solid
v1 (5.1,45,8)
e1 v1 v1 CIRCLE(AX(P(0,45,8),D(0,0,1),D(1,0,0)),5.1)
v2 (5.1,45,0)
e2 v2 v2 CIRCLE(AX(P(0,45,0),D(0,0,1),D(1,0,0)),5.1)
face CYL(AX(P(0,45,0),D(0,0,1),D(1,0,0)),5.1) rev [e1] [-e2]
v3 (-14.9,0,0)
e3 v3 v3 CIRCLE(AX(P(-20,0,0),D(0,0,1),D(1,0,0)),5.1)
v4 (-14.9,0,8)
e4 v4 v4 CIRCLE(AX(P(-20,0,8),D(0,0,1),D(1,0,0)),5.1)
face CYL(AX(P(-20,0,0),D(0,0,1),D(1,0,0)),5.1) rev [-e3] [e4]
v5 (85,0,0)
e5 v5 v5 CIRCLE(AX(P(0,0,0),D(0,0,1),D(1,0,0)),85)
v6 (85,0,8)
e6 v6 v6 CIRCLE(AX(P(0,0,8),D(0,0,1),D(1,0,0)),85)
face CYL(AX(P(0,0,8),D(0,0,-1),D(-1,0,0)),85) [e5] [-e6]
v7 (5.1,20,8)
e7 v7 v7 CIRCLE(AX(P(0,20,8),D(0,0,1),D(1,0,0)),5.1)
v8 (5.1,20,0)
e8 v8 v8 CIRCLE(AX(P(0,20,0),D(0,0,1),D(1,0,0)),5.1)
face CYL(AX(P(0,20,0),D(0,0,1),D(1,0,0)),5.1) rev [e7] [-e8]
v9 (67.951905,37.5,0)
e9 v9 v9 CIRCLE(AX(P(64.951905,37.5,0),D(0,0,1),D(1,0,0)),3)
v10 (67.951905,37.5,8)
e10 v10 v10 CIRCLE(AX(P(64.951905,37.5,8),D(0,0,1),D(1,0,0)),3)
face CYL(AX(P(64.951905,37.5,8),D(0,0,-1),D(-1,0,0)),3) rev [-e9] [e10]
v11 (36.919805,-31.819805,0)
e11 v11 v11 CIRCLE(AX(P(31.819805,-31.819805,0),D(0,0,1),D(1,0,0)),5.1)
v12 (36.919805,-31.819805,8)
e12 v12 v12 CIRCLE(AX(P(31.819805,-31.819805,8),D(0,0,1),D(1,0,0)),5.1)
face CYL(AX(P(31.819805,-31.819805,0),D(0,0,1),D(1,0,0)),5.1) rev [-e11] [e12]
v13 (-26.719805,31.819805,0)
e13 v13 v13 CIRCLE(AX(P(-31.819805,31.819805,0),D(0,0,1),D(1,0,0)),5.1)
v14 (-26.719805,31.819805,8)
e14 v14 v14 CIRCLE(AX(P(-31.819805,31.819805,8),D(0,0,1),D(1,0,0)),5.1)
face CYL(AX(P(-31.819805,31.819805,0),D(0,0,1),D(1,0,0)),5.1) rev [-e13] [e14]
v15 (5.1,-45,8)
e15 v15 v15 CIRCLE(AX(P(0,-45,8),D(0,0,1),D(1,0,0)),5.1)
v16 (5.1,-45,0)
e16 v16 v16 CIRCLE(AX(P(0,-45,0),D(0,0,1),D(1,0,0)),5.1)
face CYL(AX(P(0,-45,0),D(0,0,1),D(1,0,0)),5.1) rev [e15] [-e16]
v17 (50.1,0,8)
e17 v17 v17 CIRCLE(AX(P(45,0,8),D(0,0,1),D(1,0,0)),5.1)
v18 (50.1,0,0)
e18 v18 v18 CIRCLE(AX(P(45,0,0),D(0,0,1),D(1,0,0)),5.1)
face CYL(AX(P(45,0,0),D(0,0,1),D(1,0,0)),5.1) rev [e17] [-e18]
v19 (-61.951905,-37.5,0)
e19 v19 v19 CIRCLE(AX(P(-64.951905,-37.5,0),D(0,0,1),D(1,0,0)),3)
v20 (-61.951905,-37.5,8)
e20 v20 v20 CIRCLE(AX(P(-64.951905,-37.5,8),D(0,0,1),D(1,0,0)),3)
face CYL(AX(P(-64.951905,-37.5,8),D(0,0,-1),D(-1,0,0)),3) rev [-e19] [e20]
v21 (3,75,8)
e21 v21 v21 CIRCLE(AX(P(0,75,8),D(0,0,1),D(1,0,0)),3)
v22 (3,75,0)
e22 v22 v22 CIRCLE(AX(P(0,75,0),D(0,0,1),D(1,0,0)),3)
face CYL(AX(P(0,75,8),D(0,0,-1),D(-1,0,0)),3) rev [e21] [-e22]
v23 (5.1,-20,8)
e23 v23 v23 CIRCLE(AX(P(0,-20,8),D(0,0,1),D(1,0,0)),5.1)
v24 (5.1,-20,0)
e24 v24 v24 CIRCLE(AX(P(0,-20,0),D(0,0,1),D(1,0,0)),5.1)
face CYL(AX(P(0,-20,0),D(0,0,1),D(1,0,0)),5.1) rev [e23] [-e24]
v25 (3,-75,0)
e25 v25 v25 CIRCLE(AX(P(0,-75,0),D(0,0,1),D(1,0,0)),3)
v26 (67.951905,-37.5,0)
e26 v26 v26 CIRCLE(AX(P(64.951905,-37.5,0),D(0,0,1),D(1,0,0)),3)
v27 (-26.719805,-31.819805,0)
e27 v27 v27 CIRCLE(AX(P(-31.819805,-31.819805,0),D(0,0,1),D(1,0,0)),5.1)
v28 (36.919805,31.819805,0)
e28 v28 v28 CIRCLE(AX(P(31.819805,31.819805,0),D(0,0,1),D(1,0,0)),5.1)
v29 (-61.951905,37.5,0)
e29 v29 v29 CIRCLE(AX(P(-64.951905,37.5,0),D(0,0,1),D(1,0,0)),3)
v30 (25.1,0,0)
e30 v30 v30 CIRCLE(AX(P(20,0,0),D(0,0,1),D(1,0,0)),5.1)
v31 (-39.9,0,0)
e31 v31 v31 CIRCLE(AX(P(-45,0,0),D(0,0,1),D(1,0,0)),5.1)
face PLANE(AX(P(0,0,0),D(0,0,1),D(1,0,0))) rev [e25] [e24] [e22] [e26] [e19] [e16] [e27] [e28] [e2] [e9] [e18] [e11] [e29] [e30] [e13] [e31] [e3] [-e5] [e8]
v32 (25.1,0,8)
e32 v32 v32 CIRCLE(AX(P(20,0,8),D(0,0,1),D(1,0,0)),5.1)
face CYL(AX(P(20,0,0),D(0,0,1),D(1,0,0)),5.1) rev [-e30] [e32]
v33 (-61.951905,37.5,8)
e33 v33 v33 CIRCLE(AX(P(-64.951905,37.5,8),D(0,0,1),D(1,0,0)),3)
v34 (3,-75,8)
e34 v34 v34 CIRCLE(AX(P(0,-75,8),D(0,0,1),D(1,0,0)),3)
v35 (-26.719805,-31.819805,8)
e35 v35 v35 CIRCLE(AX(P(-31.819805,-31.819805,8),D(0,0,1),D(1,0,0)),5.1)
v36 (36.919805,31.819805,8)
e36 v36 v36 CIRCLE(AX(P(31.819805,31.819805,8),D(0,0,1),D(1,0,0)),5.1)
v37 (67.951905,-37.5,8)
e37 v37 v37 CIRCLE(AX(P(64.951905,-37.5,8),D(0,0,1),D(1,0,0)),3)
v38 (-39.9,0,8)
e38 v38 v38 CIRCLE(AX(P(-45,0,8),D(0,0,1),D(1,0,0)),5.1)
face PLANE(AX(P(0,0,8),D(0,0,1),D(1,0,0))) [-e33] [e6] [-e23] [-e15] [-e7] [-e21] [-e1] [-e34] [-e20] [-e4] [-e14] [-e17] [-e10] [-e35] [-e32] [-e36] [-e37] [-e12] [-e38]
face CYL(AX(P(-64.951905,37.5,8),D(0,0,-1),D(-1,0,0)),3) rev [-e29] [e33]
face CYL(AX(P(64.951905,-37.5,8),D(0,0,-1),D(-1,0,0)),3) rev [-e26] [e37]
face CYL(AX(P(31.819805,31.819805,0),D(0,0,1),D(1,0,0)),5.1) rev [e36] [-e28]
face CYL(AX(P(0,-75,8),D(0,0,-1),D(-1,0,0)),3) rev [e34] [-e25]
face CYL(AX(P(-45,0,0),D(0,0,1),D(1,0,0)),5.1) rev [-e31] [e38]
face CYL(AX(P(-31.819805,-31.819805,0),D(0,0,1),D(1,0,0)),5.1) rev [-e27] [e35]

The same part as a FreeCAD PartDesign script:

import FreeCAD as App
import Part
import Sketcher
from FreeCAD import Vector
Q = App.Units.Quantity

doc = App.newDocument("Part")
body = doc.addObject("PartDesign::Body", "Body")

sketch1 = body.newObject("Sketcher::SketchObject", "Sketch")
sketch1.AttachmentSupport = (doc.getObject("XY_Plane"), [""])
sketch1.MapMode = "FlatFace"
sketch1.addGeometry([
    Part.Circle(Vector(0, 0, 0), Vector(0, 0, 1), 85),
    Part.Circle(Vector(-65, -37.5, 0), Vector(0, 0, 1), 3),
    Part.Circle(Vector(0, -75, 0), Vector(0, 0, 1), 3),
    Part.Circle(Vector(65, -37.5, 0), Vector(0, 0, 1), 3),
    Part.Circle(Vector(-65, 37.5, 0), Vector(0, 0, 1), 3),
    Part.Circle(Vector(65, 37.5, 0), Vector(0, 0, 1), 3),
    Part.Circle(Vector(0, 75, 0), Vector(0, 0, 1), 3),
], False)
sketch1.addConstraint([
    Sketcher.Constraint("Coincident", 0, 3, -1, 1),
    Sketcher.Constraint("Equal", 1, 2),
    Sketcher.Constraint("Equal", 2, 3),
    Sketcher.Constraint("Equal", 3, 4),
    Sketcher.Constraint("Equal", 4, 5),
    Sketcher.Constraint("Equal", 5, 6),
    Sketcher.Constraint("Symmetric", 3, 3, 4, 3, -1, 1),
    Sketcher.Constraint("Symmetric", 1, 3, 5, 3, -1, 1),
    Sketcher.Constraint("Symmetric", 2, 3, 6, 3, -1, 1),
    Sketcher.Constraint("Symmetric", 1, 3, 3, 3, -2),
    Sketcher.Constraint("PointOnObject", 2, 3, -2),
    Sketcher.Constraint("Diameter", 0, Q("170 mm")),
    Sketcher.Constraint("Diameter", 1, Q("6 mm")),
    Sketcher.Constraint("DistanceY", 2, 3, -1, 1, Q("75 mm")),
    Sketcher.Constraint("DistanceY", 1, 3, 4, 3, Q("75 mm")),
    Sketcher.Constraint("DistanceX", 1, 3, 3, 3, Q("129.903811 mm")),
])
pad1 = body.newObject("PartDesign::Pad", "Pad")
pad1.Profile = sketch1
pad1.Length = 8

sketch2 = body.newObject("Sketcher::SketchObject", "Sketch001")
sketch2.AttachmentSupport = (doc.getObject("XY_Plane"), [""])
sketch2.MapMode = "FlatFace"
sketch2.AttachmentOffset = App.Placement(Vector(0, 0, 8), App.Rotation())
sketch2.addGeometry([
    Part.Circle(Vector(0, 45, 0), Vector(0, 0, 1), 5),
    Part.Circle(Vector(32, 32, 0), Vector(0, 0, 1), 5),
    Part.Circle(Vector(45, 0, 0), Vector(0, 0, 1), 5),
    Part.Circle(Vector(32, -32, 0), Vector(0, 0, 1), 5),
    Part.Circle(Vector(0, -45, 0), Vector(0, 0, 1), 5),
    Part.Circle(Vector(-32, -32, 0), Vector(0, 0, 1), 5),
    Part.Circle(Vector(-45, 0, 0), Vector(0, 0, 1), 5),
    Part.Circle(Vector(-32, 32, 0), Vector(0, 0, 1), 5),
    Part.Circle(Vector(0, 20, 0), Vector(0, 0, 1), 5),
    Part.Circle(Vector(20, 0, 0), Vector(0, 0, 1), 5),
    Part.Circle(Vector(0, -20, 0), Vector(0, 0, 1), 5),
    Part.Circle(Vector(-20, 0, 0), Vector(0, 0, 1), 5),
], False)
sketch2.addConstraint([
    Sketcher.Constraint("Equal", 0, 1),
    Sketcher.Constraint("Equal", 1, 2),
    Sketcher.Constraint("Equal", 2, 3),
    Sketcher.Constraint("Equal", 3, 4),
    Sketcher.Constraint("Equal", 4, 5),
    Sketcher.Constraint("Equal", 5, 6),
    Sketcher.Constraint("Equal", 6, 7),
    Sketcher.Constraint("Equal", 7, 8),
    Sketcher.Constraint("Equal", 8, 9),
    Sketcher.Constraint("Equal", 9, 10),
    Sketcher.Constraint("Equal", 10, 11),
    Sketcher.Constraint("Symmetric", 0, 3, 4, 3, -1, 1),
    Sketcher.Constraint("Symmetric", 1, 3, 5, 3, -1, 1),
    Sketcher.Constraint("Symmetric", 2, 3, 6, 3, -1, 1),
    Sketcher.Constraint("Symmetric", 3, 3, 7, 3, -1, 1),
    Sketcher.Constraint("Symmetric", 8, 3, 10, 3, -1, 1),
    Sketcher.Constraint("Symmetric", 9, 3, 11, 3, -1, 1),
    Sketcher.Constraint("Symmetric", 3, 3, 5, 3, -2),
    Sketcher.Constraint("PointOnObject", 0, 3, -2),
    Sketcher.Constraint("PointOnObject", 2, 3, -1),
    Sketcher.Constraint("PointOnObject", 8, 3, -2),
    Sketcher.Constraint("PointOnObject", 9, 3, -1),
    Sketcher.Constraint("Diameter", 0, Q("10.2 mm")),
    Sketcher.Constraint("DistanceY", -1, 1, 0, 3, Q("45 mm")),
    Sketcher.Constraint("DistanceX", -1, 1, 2, 3, Q("45 mm")),
    Sketcher.Constraint("DistanceY", -1, 1, 8, 3, Q("20 mm")),
    Sketcher.Constraint("DistanceX", -1, 1, 9, 3, Q("20 mm")),
    Sketcher.Constraint("DistanceY", 3, 3, 1, 3, Q("63.63961 mm")),
    Sketcher.Constraint("DistanceX", 5, 3, 3, 3, Q("63.63961 mm")),
])
pocket1 = body.newObject("PartDesign::Pocket", "Pocket")
pocket1.Profile = sketch2
pocket1.Type = "ThroughAll"

doc.recompute()
